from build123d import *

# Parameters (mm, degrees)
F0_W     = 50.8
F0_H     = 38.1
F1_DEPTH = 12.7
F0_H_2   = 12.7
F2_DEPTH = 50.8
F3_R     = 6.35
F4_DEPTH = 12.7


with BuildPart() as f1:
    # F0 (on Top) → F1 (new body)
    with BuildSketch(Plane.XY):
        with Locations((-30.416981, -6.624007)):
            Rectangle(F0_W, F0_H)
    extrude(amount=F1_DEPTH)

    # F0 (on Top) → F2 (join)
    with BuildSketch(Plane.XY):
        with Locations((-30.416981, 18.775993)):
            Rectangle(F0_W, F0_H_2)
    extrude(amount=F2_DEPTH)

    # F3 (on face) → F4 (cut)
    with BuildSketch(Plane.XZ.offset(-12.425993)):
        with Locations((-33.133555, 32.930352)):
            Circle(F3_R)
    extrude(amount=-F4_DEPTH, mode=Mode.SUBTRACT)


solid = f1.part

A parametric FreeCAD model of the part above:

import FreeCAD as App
import Part
import Sketcher
from FreeCAD import Vector
Q = App.Units.Quantity

doc = App.newDocument("Part")
body = doc.addObject("PartDesign::Body", "Body")

# Sketch on XY plane
sketch1 = body.newObject("Sketcher::SketchObject", "Sketch")
sketch1.AttachmentSupport = (doc.getObject("XY_Plane"), [""])
sketch1.MapMode = "FlatFace"
sketch1.addGeometry([
    Part.LineSegment(Vector(-55.816981, 12.425993, 0), Vector(-55.816981, -25.674007, 0)),
    Part.LineSegment(Vector(-55.816981, -25.674007, 0), Vector(-5.016981, -25.674007, 0)),
    Part.LineSegment(Vector(-5.016981, -25.674007, 0), Vector(-5.016981, 12.425993, 0)),
    Part.LineSegment(Vector(-5.016981, 12.425993, 0), Vector(-55.816981, 12.425993, 0)),
], False)
sketch1.addConstraint([
    Sketcher.Constraint("Coincident", 0, 2, 1, 1),
    Sketcher.Constraint("Coincident", 1, 2, 2, 1),
    Sketcher.Constraint("Coincident", 2, 2, 3, 1),
    Sketcher.Constraint("Coincident", 3, 2, 0, 1),
    Sketcher.Constraint("Vertical", 0),
    Sketcher.Constraint("Horizontal", 1),
    Sketcher.Constraint("Vertical", 2),
    Sketcher.Constraint("Horizontal", 3),
    Sketcher.Constraint("DistanceX", 1, 1, 1, 2, Q("2 in")),
    Sketcher.Constraint("DistanceY", 0, 2, 0, 1, Q("1.5 in")),
    Sketcher.Constraint("DistanceX", 0, 2, -1, 1, Q("55.816981 mm")),
    Sketcher.Constraint("DistanceY", 0, 2, -1, 1, Q("25.674007 mm")),
])
pad1 = body.newObject("PartDesign::Pad", "Pad")
pad1.Profile = sketch1
pad1.Length = Q("0.5 in")

# Sketch on XY plane
sketch2 = body.newObject("Sketcher::SketchObject", "Sketch001")
sketch2.AttachmentSupport = (doc.getObject("XY_Plane"), [""])
sketch2.MapMode = "FlatFace"
sketch2.addGeometry([
    Part.LineSegment(Vector(-55.816981, 25.125993, 0), Vector(-55.816981, 12.425993, 0)),
    Part.LineSegment(Vector(-55.816981, 12.425993, 0), Vector(-5.016981, 12.425993, 0)),
    Part.LineSegment(Vector(-5.016981, 12.425993, 0), Vector(-5.016981, 25.125993, 0)),
    Part.LineSegment(Vector(-5.016981, 25.125993, 0), Vector(-55.816981, 25.125993, 0)),
], False)
sketch2.addConstraint([
    Sketcher.Constraint("Coincident", 0, 2, 1, 1),
    Sketcher.Constraint("Coincident", 1, 2, 2, 1),
    Sketcher.Constraint("Coincident", 2, 2, 3, 1),
    Sketcher.Constraint("Coincident", 3, 2, 0, 1),
    Sketcher.Constraint("Vertical", 0),
    Sketcher.Constraint("Horizontal", 1),
    Sketcher.Constraint("Vertical", 2),
    Sketcher.Constraint("Horizontal", 3),
    Sketcher.Constraint("DistanceX", 1, 1, 1, 2, Q("2 in")),
    Sketcher.Constraint("DistanceY", 0, 2, 0, 1, Q("0.5 in")),
    Sketcher.Constraint("DistanceX", 0, 2, -1, 1, Q("55.816981 mm")),
    Sketcher.Constraint("DistanceY", -1, 1, 0, 2, Q("12.425993 mm")),
])
pad2 = body.newObject("PartDesign::Pad", "Pad001")
pad2.Profile = sketch2
pad2.Length = Q("2 in")

# Sketch on XZ plane
sketch3 = body.newObject("Sketcher::SketchObject", "Sketch002")
sketch3.AttachmentSupport = (doc.getObject("XZ_Plane"), [""])
sketch3.MapMode = "FlatFace"
sketch3.AttachmentOffset = App.Placement(Vector(0, 0, -12.425993), App.Rotation())
sketch3.addGeometry(Part.Circle(Vector(-33.133555, 32.930352, 0), Vector(0, 0, 1), 6.35), False)
sketch3.addConstraint([
    Sketcher.Constraint("Diameter", 0, Q("0.5 in")),
    Sketcher.Constraint("DistanceX", 0, 3, -1, 1, Q("33.133555 mm")),
    Sketcher.Constraint("DistanceY", -1, 1, 0, 3, Q("32.930352 mm")),
])
pocket1 = body.newObject("PartDesign::Pocket", "Pocket")
pocket1.Profile = sketch3
pocket1.Length = Q("0.5 in")

doc.recompute()
